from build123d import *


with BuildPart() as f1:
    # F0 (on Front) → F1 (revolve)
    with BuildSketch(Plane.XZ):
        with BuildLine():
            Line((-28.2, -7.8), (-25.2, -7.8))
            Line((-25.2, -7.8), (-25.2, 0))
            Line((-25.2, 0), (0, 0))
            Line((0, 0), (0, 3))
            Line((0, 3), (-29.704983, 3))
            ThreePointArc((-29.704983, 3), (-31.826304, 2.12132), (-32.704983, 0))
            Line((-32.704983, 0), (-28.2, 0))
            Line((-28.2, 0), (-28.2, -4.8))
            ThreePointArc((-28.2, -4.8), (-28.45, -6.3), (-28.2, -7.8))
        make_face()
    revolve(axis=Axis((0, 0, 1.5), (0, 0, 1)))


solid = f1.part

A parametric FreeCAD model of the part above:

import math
import FreeCAD as App
import Part
import Sketcher

V = App.Vector
Q = App.Units.Quantity

doc = App.newDocument("Part")
body = doc.addObject("PartDesign::Body", "Body")

sketch1 = doc.addObject("Sketcher::SketchObject", "Sketch")
body.addObject(sketch1)
sketch1.AttachmentSupport = (doc.XZ_Plane, [""])
sketch1.MapMode = "FlatFace"
sketch1.addGeometry(Part.LineSegment(V(-28.2, -7.8, 0), V(-25.2, -7.8, 0)), False)
sketch1.addGeometry(Part.LineSegment(V(-25.2, -7.8, 0), V(-25.2, 0, 0)), False)
sketch1.addGeometry(Part.LineSegment(V(-25.2, 0, 0), V(0, 0, 0)), False)
sketch1.addGeometry(Part.LineSegment(V(0, 0, 0), V(0, 3, 0)), False)
sketch1.addGeometry(Part.LineSegment(V(0, 3, 0), V(-29.7, 3, 0)), False)
sketch1.addGeometry(Part.ArcOfCircle(Part.Circle(V(-29.7, 0, 0), V(0, 0, 1), 3), math.radians(90), math.radians(180)), False)
sketch1.addGeometry(Part.LineSegment(V(-32.7, 0, 0), V(-28.2, 0, 0)), False)
sketch1.addGeometry(Part.LineSegment(V(-28.2, 0, 0), V(-28.2, -4.8, 0)), False)
sketch1.addGeometry(Part.ArcOfCircle(Part.Circle(V(-23.8, -6.3, 0), V(0, 0, 1), 4.6), math.radians(161), math.radians(199)), False)
sketch1.addConstraint(Sketcher.Constraint("Coincident", 0, 2, 1, 1))
sketch1.addConstraint(Sketcher.Constraint("Coincident", 1, 2, 2, 1))
sketch1.addConstraint(Sketcher.Constraint("Coincident", 2, 2, 3, 1))
sketch1.addConstraint(Sketcher.Constraint("Coincident", 3, 2, 4, 1))
sketch1.addConstraint(Sketcher.Constraint("Tangent", 4, 2, 5, 1))
sketch1.addConstraint(Sketcher.Constraint("Coincident", 5, 2, 6, 1))
sketch1.addConstraint(Sketcher.Constraint("Coincident", 6, 2, 7, 1))
sketch1.addConstraint(Sketcher.Constraint("Coincident", 7, 2, 8, 1))
sketch1.addConstraint(Sketcher.Constraint("Coincident", 8, 2, 0, 1))
sketch1.addConstraint(Sketcher.Constraint("Horizontal", 0))
sketch1.addConstraint(Sketcher.Constraint("Vertical", 1))
sketch1.addConstraint(Sketcher.Constraint("Horizontal", 2))
sketch1.addConstraint(Sketcher.Constraint("Vertical", 3))
sketch1.addConstraint(Sketcher.Constraint("Horizontal", 4))
sketch1.addConstraint(Sketcher.Constraint("Horizontal", 6))
sketch1.addConstraint(Sketcher.Constraint("Vertical", 7))
sketch1.addConstraint(Sketcher.Constraint("Coincident", 2, 2, -1, 1))
sketch1.addConstraint(Sketcher.Constraint("PointOnObject", 5, 3, -1))
sketch1.addConstraint(Sketcher.Constraint("PointOnObject", 5, 2, -1))
sketch1.addConstraint(Sketcher.Constraint("Vertical", 7, 2, 8, 2))
sketch1.addConstraint(Sketcher.Constraint("Equal", 0, 3))
sketch1.addConstraint(Sketcher.Constraint("Radius", 5, Q("2.999999 mm")))
sketch1.addConstraint(Sketcher.Constraint("DistanceX", 2, 1, 2, 2, Q("25.2 mm")))
sketch1.addConstraint(Sketcher.Constraint("DistanceY", 1, 1, 1, 2, Q("7.8 mm")))
sketch1.addConstraint(Sketcher.Constraint("DistanceY", 7, 2, 7, 1, Q("4.8 mm")))
sketch1.addConstraint(Sketcher.Constraint("Radius", 8, Q("4.625 mm")))
sketch1.addConstraint(Sketcher.Constraint("DistanceX", 4, 2, 4, 1, Q("29.704983 mm")))
revolution = doc.addObject("PartDesign::Revolution", "Revolution")
body.addObject(revolution)
revolution.Profile = sketch1
revolution.ReferenceAxis = (sketch1, ["V_Axis"])
revolution.Angle = 360

doc.recompute()
